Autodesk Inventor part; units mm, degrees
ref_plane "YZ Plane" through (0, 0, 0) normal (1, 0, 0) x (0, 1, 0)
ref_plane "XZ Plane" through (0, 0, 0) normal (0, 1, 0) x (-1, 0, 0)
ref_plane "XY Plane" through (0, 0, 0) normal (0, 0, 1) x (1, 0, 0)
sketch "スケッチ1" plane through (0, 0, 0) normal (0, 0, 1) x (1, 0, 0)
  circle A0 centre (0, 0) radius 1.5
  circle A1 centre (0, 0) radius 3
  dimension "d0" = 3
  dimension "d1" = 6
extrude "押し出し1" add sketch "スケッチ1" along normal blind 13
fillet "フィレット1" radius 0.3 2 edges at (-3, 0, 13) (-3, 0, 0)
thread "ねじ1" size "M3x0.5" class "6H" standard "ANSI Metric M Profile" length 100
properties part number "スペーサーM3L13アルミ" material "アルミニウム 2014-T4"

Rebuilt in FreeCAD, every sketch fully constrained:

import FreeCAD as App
import Part
import Sketcher
Q = App.Units.Quantity


def edges_at(feature, points):
    """Names of the edges that pass closest to the given points."""
    edges = feature.Shape.Edges
    near = lambda p: min(range(len(edges)), key=lambda i: edges[i].distToShape(Part.Vertex(*p))[0])
    return sorted({f"Edge{near(p) + 1}" for p in points})

doc = App.newDocument("Part")
body = doc.addObject("PartDesign::Body", "Body")

# Sketch on XY plane
sketch1 = body.newObject("Sketcher::SketchObject", "Sketch")
sketch1.AttachmentSupport = (doc.getObject("XY_Plane"), [""])
sketch1.MapMode = "FlatFace"
sketch1.addGeometry([
    Part.Circle(App.Vector(0, 0, 0), App.Vector(0, 0, 1), 3),
    Part.Circle(App.Vector(0, 0, 0), App.Vector(0, 0, 1), 1.5),
], False)
sketch1.addConstraint([
    Sketcher.Constraint("Coincident", 0, 3, -1, 1),
    Sketcher.Constraint("Coincident", 1, 3, -1, 1),
    Sketcher.Constraint("Diameter", 0, Q("6 mm")),
    Sketcher.Constraint("Diameter", 1, Q("3 mm")),
])
pad1 = body.newObject("PartDesign::Pad", "Pad")
pad1.Profile = sketch1
pad1.Length = 13
doc.recompute()

fillet = body.newObject("PartDesign::Fillet", "Fillet")
fillet.Base = (pad1, edges_at(pad1, [(-3, 0, 13), (-3, 0, 0)]))
fillet.Radius = 0.3

doc.recompute()
